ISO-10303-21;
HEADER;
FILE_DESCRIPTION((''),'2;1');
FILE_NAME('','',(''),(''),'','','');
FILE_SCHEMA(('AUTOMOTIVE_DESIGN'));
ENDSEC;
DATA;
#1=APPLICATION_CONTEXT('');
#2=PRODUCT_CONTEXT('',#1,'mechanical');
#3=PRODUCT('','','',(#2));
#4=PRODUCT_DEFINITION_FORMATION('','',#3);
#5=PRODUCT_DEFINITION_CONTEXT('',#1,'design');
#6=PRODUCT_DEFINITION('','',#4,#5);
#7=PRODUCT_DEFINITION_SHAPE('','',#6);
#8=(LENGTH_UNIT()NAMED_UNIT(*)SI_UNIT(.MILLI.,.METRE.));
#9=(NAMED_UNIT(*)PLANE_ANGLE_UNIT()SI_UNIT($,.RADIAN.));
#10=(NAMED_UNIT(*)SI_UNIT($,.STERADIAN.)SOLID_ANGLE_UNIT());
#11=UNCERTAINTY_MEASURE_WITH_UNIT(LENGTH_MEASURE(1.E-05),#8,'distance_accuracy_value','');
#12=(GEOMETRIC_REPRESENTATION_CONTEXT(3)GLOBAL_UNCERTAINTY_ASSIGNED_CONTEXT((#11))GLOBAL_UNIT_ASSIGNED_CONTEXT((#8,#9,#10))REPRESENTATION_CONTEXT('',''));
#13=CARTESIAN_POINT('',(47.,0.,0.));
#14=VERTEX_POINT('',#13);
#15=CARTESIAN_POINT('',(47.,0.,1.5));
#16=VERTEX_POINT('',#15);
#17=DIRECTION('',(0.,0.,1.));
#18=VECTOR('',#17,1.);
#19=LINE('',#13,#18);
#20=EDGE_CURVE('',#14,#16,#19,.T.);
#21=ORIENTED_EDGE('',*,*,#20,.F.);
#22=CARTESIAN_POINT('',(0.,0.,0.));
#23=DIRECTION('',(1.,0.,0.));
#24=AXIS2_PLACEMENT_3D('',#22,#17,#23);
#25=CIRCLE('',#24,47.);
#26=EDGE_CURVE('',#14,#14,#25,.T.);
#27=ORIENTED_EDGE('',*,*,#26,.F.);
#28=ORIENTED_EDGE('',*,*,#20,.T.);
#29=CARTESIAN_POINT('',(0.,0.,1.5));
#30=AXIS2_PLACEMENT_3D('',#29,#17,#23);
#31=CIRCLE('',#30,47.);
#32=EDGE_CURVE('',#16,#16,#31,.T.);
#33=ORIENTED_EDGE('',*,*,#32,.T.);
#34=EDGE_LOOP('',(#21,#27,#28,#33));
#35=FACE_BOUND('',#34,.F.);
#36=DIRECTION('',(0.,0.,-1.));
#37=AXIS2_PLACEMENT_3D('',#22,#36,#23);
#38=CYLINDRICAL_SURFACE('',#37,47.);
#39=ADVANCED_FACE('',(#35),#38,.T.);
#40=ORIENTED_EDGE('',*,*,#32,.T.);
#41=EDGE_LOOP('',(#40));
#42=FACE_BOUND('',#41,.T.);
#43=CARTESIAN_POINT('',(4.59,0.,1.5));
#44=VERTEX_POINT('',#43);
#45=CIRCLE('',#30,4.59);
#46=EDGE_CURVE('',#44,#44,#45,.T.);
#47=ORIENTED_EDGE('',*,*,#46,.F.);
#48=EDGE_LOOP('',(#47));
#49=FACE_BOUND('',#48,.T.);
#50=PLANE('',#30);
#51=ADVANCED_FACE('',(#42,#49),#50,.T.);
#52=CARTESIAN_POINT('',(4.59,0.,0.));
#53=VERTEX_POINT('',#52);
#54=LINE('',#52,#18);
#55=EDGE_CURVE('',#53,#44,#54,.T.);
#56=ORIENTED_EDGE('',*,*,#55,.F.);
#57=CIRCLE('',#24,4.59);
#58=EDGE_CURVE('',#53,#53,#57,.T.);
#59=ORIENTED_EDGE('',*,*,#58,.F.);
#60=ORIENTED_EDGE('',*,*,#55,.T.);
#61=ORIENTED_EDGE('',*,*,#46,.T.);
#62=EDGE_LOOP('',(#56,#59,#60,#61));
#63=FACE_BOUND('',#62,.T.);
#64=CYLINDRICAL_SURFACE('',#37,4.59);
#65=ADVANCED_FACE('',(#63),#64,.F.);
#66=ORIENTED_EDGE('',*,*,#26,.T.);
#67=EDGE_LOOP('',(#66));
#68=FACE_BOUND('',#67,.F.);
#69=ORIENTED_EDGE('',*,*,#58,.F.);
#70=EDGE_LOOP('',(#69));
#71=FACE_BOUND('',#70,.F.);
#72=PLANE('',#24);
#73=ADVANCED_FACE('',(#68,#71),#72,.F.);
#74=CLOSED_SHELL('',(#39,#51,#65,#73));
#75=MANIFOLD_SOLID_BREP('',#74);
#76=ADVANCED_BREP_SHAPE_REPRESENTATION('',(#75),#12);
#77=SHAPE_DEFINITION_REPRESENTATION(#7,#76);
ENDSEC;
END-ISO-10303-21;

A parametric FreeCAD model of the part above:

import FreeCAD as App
import Part
import Sketcher
Q = App.Units.Quantity

doc = App.newDocument("Part")
body = doc.addObject("PartDesign::Body", "Body")

# Sketch on XY plane
sketch1 = doc.addObject("Sketcher::SketchObject", "Sketch")
body.addObject(sketch1)
sketch1.AttachmentSupport = (doc.XY_Plane, [""])
sketch1.MapMode = "FlatFace"
sketch1.addGeometry([
    Part.Circle(App.Vector(0, 0, 0), App.Vector(0, 0, 1), 47),
    Part.Circle(App.Vector(0, 0, 0), App.Vector(0, 0, 1), 4.59),
], False)
sketch1.addConstraint([
    Sketcher.Constraint("Coincident", 0, 3, -1, 1),
    Sketcher.Constraint("Coincident", 1, 3, -1, 1),
    Sketcher.Constraint("Diameter", 0, Q("94 mm")),
    Sketcher.Constraint("Diameter", 1, Q("9.18 mm")),
])
pad1 = doc.addObject("PartDesign::Pad", "Pad")
body.addObject(pad1)
pad1.Profile = sketch1
pad1.Length = 1.5

doc.recompute()
